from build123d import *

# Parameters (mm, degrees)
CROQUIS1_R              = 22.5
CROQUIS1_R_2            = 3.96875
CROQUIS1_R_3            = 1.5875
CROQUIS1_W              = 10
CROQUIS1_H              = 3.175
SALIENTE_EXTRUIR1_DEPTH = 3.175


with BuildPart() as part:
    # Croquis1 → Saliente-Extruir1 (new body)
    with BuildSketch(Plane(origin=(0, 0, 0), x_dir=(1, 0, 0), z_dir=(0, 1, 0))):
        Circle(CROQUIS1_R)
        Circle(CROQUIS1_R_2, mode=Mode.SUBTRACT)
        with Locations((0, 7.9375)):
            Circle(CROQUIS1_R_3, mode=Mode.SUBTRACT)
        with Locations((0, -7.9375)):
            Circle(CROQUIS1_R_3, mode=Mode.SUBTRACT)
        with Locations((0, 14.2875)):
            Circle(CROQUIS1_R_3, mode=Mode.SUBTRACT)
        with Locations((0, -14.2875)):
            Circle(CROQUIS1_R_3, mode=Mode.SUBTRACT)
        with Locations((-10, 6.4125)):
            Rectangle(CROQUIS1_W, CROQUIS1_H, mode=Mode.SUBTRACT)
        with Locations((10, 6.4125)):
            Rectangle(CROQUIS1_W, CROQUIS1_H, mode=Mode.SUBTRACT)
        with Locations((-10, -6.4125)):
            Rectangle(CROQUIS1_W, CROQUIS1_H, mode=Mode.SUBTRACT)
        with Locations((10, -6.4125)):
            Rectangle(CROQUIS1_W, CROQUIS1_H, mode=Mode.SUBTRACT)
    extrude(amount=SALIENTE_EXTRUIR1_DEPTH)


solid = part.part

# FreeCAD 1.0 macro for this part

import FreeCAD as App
import Part
import Sketcher
from FreeCAD import Vector


def add_polygon(sketch, points):
    """Adds a closed chain of lines whose ends are joined by coincident constraints."""
    first, n = sketch.GeometryCount, len(points)
    for a, b in zip(points, points[1:] + points[:1]):
        sketch.addGeometry(Part.LineSegment(App.Vector(*a, 0), App.Vector(*b, 0)), False)
    for i in range(n):
        sketch.addConstraint(Sketcher.Constraint("Coincident", first + i, 2, first + (i + 1) % n, 1))

doc = App.newDocument("Part")
body = doc.addObject("PartDesign::Body", "Body")

sketch1 = body.newObject("Sketcher::SketchObject", "Sketch")
sketch1.AttachmentSupport = (doc.getObject("XZ_Plane"), [""])
sketch1.MapMode = "FlatFace"
sketch1.addGeometry(Part.Circle(Vector(0, 0, 0), Vector(0, 0, 1), 22.5), False)
add_polygon(sketch1, [(-5, 8), (-15, 8), (-15, 4.8), (-5, 4.8)])
sketch1.addGeometry(Part.Circle(Vector(0, 14.3, 0), Vector(0, 0, 1), 1.6), False)
sketch1.addGeometry(Part.Circle(Vector(0, 7.9, 0), Vector(0, 0, 1), 1.6), False)
add_polygon(sketch1, [(15, 8), (5, 8), (5, 4.8), (15, 4.8)])
add_polygon(sketch1, [(-5, -4.8), (-15, -4.8), (-15, -8), (-5, -8)])
sketch1.addGeometry(Part.Circle(Vector(0, 0, 0), Vector(0, 0, 1), 4), False)
add_polygon(sketch1, [(15, -4.8), (5, -4.8), (5, -8), (15, -8)])
sketch1.addGeometry(Part.Circle(Vector(0, -7.9, 0), Vector(0, 0, 1), 1.6), False)
sketch1.addGeometry(Part.Circle(Vector(0, -14.3, 0), Vector(0, 0, 1), 1.6), False)
sketch1.addConstraint([
    Sketcher.Constraint("Horizontal", 1),
    Sketcher.Constraint("Vertical", 2),
    Sketcher.Constraint("Horizontal", 3),
    Sketcher.Constraint("Vertical", 4),
    Sketcher.Constraint("Horizontal", 7),
    Sketcher.Constraint("Vertical", 8),
    Sketcher.Constraint("Horizontal", 9),
    Sketcher.Constraint("Vertical", 10),
    Sketcher.Constraint("Horizontal", 11),
    Sketcher.Constraint("Vertical", 12),
    Sketcher.Constraint("Horizontal", 13),
    Sketcher.Constraint("Vertical", 14),
    Sketcher.Constraint("Horizontal", 16),
    Sketcher.Constraint("Vertical", 17),
    Sketcher.Constraint("Horizontal", 18),
    Sketcher.Constraint("Vertical", 19),
    Sketcher.Constraint("Coincident", 0, 3, -1, 1),
    Sketcher.Constraint("Coincident", 15, 3, -1, 1),
    Sketcher.Constraint("Equal", 5, 6),
    Sketcher.Constraint("Equal", 6, 20),
    Sketcher.Constraint("Equal", 20, 21),
    Sketcher.Constraint("Symmetric", 6, 3, 20, 3, -1, 1),
    Sketcher.Constraint("Symmetric", 5, 3, 21, 3, -1, 1),
    Sketcher.Constraint("Symmetric", 9, 2, 11, 2, -1, 1),
    Sketcher.Constraint("Symmetric", 7, 2, 13, 2, -1, 1),
    Sketcher.Constraint("Symmetric", 3, 2, 16, 2, -1, 1),
    Sketcher.Constraint("Symmetric", 1, 2, 18, 2, -1, 1),
    Sketcher.Constraint("Symmetric", 4, 2, 7, 2, -2),
    Sketcher.Constraint("Symmetric", 2, 2, 9, 2, -2),
    Sketcher.Constraint("PointOnObject", 5, 3, -2),
    Sketcher.Constraint("PointOnObject", 6, 3, -2),
    Sketcher.Constraint("Diameter", 0, 45.0),
    Sketcher.Constraint("DistanceX", 1, 2, 1, 1, 10.0),
    Sketcher.Constraint("Diameter", 5, 3.175),
    Sketcher.Constraint("DistanceX", 1, 2, -1, 1, 15.0),
    Sketcher.Constraint("DistanceY", -1, 1, 1, 2, 8.0),
    Sketcher.Constraint("Diameter", 15, 7.9375),
    Sketcher.Constraint("DistanceY", 2, 2, 2, 1, 3.175),
    Sketcher.Constraint("DistanceY", 6, 3, 5, 3, 6.35),
    Sketcher.Constraint("DistanceY", 20, 3, 6, 3, 15.875),
])
pad1 = body.newObject("PartDesign::Pad", "Pad")
pad1.Profile = sketch1
pad1.Length = 3.175
pad1.Reversed = True

doc.recompute()
